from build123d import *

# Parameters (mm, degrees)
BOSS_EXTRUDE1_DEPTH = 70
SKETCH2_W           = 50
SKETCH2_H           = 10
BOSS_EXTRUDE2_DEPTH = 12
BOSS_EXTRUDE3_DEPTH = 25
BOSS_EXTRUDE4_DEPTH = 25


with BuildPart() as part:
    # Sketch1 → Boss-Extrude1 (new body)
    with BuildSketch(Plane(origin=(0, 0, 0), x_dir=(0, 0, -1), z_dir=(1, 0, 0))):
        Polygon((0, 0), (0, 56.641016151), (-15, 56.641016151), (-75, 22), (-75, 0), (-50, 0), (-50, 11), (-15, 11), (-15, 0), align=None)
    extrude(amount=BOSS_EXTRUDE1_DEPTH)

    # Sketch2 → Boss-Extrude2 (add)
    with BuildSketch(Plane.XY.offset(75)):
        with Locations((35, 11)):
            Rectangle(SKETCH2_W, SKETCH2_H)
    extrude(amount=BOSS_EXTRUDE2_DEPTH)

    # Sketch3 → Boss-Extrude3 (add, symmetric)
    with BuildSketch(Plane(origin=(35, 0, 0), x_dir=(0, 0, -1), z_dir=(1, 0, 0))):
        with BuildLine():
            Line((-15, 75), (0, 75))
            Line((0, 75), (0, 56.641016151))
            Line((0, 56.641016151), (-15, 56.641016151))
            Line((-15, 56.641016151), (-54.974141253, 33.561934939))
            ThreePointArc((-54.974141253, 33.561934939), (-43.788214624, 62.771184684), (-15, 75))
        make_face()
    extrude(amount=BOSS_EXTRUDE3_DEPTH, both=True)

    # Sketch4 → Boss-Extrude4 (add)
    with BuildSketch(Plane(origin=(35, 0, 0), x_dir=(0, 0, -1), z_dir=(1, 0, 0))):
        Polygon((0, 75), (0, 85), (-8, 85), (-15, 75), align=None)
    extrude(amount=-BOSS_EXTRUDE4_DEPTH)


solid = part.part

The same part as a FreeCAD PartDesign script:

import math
import FreeCAD as App
import Part
import Sketcher
Q = App.Units.Quantity


def add_polygon(sketch, points):
    """Adds a closed chain of lines whose ends are joined by coincident constraints."""
    first, n = sketch.GeometryCount, len(points)
    for a, b in zip(points, points[1:] + points[:1]):
        sketch.addGeometry(Part.LineSegment(App.Vector(*a, 0), App.Vector(*b, 0)), False)
    for i in range(n):
        sketch.addConstraint(Sketcher.Constraint("Coincident", first + i, 2, first + (i + 1) % n, 1))

doc = App.newDocument("Part")
body = doc.addObject("PartDesign::Body", "Body")

# Sketch on YZ plane
sketch1 = body.newObject("Sketcher::SketchObject", "Sketch")
sketch1.AttachmentSupport = (doc.getObject("YZ_Plane"), [""])
sketch1.MapMode = "FlatFace"
add_polygon(sketch1, [(0, 0), (57, 0), (57, 15), (22, 75), (0, 75), (0, 50), (11, 50), (11, 15), (0, 15)])  # lines 0-8
sketch1.addConstraint([
    Sketcher.Constraint("Horizontal", 0),
    Sketcher.Constraint("Vertical", 1),
    Sketcher.Constraint("Horizontal", 3),
    Sketcher.Constraint("Vertical", 4),
    Sketcher.Constraint("Horizontal", 5),
    Sketcher.Constraint("Vertical", 6),
    Sketcher.Constraint("Horizontal", 7),
    Sketcher.Constraint("Vertical", 8),
    Sketcher.Constraint("Coincident", 8, 2, -1, 1),
    Sketcher.Constraint("PointOnObject", 3, 2, -2),
    Sketcher.Constraint("Horizontal", 1, 2, 6, 2),
    Sketcher.Constraint("DistanceX", 3, 2, 3, 1, Q("22 mm")),
    Sketcher.Constraint("DistanceX", 5, 1, 5, 2, Q("11 mm")),
    Sketcher.Constraint("DistanceY", 1, 1, 1, 2, Q("15 mm")),
    Sketcher.Constraint("DistanceY", 4, 2, 4, 1, Q("25 mm")),
    Sketcher.Constraint("DistanceY", 6, 2, 6, 1, Q("35 mm")),
    Sketcher.Constraint("Angle", 2, Q("120 deg")),
])
pad1 = body.newObject("PartDesign::Pad", "Pad")
pad1.Profile = sketch1
pad1.Length = 70

# Sketch on XY plane
sketch2 = body.newObject("Sketcher::SketchObject", "Sketch001")
sketch2.AttachmentSupport = (doc.getObject("XY_Plane"), [""])
sketch2.MapMode = "FlatFace"
sketch2.AttachmentOffset = App.Placement(App.Vector(0, 0, 75), App.Rotation())
add_polygon(sketch2, [(10, 16), (10, 6), (60, 6), (60, 16)])  # lines 0-3
sketch2.addConstraint([
    Sketcher.Constraint("Vertical", 0),
    Sketcher.Constraint("Horizontal", 1),
    Sketcher.Constraint("Vertical", 2),
    Sketcher.Constraint("Horizontal", 3),
    Sketcher.Constraint("DistanceX", 1, 1, 1, 2, Q("50 mm")),
    Sketcher.Constraint("DistanceY", 0, 2, 0, 1, Q("10 mm")),
    Sketcher.Constraint("DistanceX", -1, 1, 0, 2, Q("10 mm")),
    Sketcher.Constraint("DistanceY", -1, 1, 0, 2, Q("6 mm")),
])
pad2 = body.newObject("PartDesign::Pad", "Pad001")
pad2.Profile = sketch2
pad2.Length = 12

# Sketch on YZ plane
sketch3 = body.newObject("Sketcher::SketchObject", "Sketch002")
sketch3.AttachmentSupport = (doc.getObject("YZ_Plane"), [""])
sketch3.MapMode = "FlatFace"
sketch3.AttachmentOffset = App.Placement(App.Vector(0, 0, 35), App.Rotation())
sketch3.addGeometry([
    Part.LineSegment(App.Vector(75, 0, 0), App.Vector(75, 15, 0)),  # 0
    Part.ArcOfCircle(Part.Circle(App.Vector(35, 15, 0), App.Vector(0, 0, 1), 40), math.radians(0), math.radians(92)),  # 1
    Part.LineSegment(App.Vector(34, 55, 0), App.Vector(57, 15, 0)),  # 2
    Part.LineSegment(App.Vector(57, 15, 0), App.Vector(57, 0, 0)),  # 3
    Part.LineSegment(App.Vector(57, 0, 0), App.Vector(75, 0, 0)),  # 4
], False)
sketch3.addConstraint([
    Sketcher.Constraint("Tangent", 0, 2, 1, 1),
    Sketcher.Constraint("Coincident", 1, 2, 2, 1),
    Sketcher.Constraint("Coincident", 2, 2, 3, 1),
    Sketcher.Constraint("Coincident", 3, 2, 4, 1),
    Sketcher.Constraint("Coincident", 4, 2, 0, 1),
    Sketcher.Constraint("Vertical", 0),
    Sketcher.Constraint("Vertical", 3),
    Sketcher.Constraint("Horizontal", 4),
    Sketcher.Constraint("PointOnObject", 3, 2, -1),
    Sketcher.Constraint("Horizontal", 0, 2, 2, 2),
    Sketcher.Constraint("Radius", 1, Q("40 mm")),
    Sketcher.Constraint("DistanceY", 0, 1, 0, 2, Q("15 mm")),
    Sketcher.Constraint("Angle", 2, Q("-60 deg")),
    Sketcher.Constraint("DistanceX", -1, 1, 1, 3, Q("35 mm")),
    Sketcher.Constraint("DistanceX", 4, 1, 4, 2, Q("18.358984 mm")),
])
pad3 = body.newObject("PartDesign::Pad", "Pad002")
pad3.Profile = sketch3
pad3.Length = 50
pad3.Midplane = True

# Sketch on YZ plane
sketch4 = body.newObject("Sketcher::SketchObject", "Sketch003")
sketch4.AttachmentSupport = (doc.getObject("YZ_Plane"), [""])
sketch4.MapMode = "FlatFace"
sketch4.AttachmentOffset = App.Placement(App.Vector(0, 0, 35), App.Rotation())
add_polygon(sketch4, [(75, 0), (85, 0), (85, 8), (75, 15)])  # lines 0-3
sketch4.addConstraint([
    Sketcher.Constraint("Horizontal", 0),
    Sketcher.Constraint("Vertical", 1),
    Sketcher.Constraint("Vertical", 3),
    Sketcher.Constraint("PointOnObject", 0, 2, -1),
    Sketcher.Constraint("DistanceX", 0, 1, 0, 2, Q("10 mm")),
    Sketcher.Constraint("DistanceY", 1, 1, 1, 2, Q("8 mm")),
    Sketcher.Constraint("DistanceY", 3, 2, 3, 1, Q("15 mm")),
    Sketcher.Constraint("DistanceX", -1, 1, 0, 2, Q("85 mm")),
])
pad4 = body.newObject("PartDesign::Pad", "Pad003")
pad4.Profile = sketch4
pad4.Length = 25
pad4.Reversed = True

doc.recompute()
